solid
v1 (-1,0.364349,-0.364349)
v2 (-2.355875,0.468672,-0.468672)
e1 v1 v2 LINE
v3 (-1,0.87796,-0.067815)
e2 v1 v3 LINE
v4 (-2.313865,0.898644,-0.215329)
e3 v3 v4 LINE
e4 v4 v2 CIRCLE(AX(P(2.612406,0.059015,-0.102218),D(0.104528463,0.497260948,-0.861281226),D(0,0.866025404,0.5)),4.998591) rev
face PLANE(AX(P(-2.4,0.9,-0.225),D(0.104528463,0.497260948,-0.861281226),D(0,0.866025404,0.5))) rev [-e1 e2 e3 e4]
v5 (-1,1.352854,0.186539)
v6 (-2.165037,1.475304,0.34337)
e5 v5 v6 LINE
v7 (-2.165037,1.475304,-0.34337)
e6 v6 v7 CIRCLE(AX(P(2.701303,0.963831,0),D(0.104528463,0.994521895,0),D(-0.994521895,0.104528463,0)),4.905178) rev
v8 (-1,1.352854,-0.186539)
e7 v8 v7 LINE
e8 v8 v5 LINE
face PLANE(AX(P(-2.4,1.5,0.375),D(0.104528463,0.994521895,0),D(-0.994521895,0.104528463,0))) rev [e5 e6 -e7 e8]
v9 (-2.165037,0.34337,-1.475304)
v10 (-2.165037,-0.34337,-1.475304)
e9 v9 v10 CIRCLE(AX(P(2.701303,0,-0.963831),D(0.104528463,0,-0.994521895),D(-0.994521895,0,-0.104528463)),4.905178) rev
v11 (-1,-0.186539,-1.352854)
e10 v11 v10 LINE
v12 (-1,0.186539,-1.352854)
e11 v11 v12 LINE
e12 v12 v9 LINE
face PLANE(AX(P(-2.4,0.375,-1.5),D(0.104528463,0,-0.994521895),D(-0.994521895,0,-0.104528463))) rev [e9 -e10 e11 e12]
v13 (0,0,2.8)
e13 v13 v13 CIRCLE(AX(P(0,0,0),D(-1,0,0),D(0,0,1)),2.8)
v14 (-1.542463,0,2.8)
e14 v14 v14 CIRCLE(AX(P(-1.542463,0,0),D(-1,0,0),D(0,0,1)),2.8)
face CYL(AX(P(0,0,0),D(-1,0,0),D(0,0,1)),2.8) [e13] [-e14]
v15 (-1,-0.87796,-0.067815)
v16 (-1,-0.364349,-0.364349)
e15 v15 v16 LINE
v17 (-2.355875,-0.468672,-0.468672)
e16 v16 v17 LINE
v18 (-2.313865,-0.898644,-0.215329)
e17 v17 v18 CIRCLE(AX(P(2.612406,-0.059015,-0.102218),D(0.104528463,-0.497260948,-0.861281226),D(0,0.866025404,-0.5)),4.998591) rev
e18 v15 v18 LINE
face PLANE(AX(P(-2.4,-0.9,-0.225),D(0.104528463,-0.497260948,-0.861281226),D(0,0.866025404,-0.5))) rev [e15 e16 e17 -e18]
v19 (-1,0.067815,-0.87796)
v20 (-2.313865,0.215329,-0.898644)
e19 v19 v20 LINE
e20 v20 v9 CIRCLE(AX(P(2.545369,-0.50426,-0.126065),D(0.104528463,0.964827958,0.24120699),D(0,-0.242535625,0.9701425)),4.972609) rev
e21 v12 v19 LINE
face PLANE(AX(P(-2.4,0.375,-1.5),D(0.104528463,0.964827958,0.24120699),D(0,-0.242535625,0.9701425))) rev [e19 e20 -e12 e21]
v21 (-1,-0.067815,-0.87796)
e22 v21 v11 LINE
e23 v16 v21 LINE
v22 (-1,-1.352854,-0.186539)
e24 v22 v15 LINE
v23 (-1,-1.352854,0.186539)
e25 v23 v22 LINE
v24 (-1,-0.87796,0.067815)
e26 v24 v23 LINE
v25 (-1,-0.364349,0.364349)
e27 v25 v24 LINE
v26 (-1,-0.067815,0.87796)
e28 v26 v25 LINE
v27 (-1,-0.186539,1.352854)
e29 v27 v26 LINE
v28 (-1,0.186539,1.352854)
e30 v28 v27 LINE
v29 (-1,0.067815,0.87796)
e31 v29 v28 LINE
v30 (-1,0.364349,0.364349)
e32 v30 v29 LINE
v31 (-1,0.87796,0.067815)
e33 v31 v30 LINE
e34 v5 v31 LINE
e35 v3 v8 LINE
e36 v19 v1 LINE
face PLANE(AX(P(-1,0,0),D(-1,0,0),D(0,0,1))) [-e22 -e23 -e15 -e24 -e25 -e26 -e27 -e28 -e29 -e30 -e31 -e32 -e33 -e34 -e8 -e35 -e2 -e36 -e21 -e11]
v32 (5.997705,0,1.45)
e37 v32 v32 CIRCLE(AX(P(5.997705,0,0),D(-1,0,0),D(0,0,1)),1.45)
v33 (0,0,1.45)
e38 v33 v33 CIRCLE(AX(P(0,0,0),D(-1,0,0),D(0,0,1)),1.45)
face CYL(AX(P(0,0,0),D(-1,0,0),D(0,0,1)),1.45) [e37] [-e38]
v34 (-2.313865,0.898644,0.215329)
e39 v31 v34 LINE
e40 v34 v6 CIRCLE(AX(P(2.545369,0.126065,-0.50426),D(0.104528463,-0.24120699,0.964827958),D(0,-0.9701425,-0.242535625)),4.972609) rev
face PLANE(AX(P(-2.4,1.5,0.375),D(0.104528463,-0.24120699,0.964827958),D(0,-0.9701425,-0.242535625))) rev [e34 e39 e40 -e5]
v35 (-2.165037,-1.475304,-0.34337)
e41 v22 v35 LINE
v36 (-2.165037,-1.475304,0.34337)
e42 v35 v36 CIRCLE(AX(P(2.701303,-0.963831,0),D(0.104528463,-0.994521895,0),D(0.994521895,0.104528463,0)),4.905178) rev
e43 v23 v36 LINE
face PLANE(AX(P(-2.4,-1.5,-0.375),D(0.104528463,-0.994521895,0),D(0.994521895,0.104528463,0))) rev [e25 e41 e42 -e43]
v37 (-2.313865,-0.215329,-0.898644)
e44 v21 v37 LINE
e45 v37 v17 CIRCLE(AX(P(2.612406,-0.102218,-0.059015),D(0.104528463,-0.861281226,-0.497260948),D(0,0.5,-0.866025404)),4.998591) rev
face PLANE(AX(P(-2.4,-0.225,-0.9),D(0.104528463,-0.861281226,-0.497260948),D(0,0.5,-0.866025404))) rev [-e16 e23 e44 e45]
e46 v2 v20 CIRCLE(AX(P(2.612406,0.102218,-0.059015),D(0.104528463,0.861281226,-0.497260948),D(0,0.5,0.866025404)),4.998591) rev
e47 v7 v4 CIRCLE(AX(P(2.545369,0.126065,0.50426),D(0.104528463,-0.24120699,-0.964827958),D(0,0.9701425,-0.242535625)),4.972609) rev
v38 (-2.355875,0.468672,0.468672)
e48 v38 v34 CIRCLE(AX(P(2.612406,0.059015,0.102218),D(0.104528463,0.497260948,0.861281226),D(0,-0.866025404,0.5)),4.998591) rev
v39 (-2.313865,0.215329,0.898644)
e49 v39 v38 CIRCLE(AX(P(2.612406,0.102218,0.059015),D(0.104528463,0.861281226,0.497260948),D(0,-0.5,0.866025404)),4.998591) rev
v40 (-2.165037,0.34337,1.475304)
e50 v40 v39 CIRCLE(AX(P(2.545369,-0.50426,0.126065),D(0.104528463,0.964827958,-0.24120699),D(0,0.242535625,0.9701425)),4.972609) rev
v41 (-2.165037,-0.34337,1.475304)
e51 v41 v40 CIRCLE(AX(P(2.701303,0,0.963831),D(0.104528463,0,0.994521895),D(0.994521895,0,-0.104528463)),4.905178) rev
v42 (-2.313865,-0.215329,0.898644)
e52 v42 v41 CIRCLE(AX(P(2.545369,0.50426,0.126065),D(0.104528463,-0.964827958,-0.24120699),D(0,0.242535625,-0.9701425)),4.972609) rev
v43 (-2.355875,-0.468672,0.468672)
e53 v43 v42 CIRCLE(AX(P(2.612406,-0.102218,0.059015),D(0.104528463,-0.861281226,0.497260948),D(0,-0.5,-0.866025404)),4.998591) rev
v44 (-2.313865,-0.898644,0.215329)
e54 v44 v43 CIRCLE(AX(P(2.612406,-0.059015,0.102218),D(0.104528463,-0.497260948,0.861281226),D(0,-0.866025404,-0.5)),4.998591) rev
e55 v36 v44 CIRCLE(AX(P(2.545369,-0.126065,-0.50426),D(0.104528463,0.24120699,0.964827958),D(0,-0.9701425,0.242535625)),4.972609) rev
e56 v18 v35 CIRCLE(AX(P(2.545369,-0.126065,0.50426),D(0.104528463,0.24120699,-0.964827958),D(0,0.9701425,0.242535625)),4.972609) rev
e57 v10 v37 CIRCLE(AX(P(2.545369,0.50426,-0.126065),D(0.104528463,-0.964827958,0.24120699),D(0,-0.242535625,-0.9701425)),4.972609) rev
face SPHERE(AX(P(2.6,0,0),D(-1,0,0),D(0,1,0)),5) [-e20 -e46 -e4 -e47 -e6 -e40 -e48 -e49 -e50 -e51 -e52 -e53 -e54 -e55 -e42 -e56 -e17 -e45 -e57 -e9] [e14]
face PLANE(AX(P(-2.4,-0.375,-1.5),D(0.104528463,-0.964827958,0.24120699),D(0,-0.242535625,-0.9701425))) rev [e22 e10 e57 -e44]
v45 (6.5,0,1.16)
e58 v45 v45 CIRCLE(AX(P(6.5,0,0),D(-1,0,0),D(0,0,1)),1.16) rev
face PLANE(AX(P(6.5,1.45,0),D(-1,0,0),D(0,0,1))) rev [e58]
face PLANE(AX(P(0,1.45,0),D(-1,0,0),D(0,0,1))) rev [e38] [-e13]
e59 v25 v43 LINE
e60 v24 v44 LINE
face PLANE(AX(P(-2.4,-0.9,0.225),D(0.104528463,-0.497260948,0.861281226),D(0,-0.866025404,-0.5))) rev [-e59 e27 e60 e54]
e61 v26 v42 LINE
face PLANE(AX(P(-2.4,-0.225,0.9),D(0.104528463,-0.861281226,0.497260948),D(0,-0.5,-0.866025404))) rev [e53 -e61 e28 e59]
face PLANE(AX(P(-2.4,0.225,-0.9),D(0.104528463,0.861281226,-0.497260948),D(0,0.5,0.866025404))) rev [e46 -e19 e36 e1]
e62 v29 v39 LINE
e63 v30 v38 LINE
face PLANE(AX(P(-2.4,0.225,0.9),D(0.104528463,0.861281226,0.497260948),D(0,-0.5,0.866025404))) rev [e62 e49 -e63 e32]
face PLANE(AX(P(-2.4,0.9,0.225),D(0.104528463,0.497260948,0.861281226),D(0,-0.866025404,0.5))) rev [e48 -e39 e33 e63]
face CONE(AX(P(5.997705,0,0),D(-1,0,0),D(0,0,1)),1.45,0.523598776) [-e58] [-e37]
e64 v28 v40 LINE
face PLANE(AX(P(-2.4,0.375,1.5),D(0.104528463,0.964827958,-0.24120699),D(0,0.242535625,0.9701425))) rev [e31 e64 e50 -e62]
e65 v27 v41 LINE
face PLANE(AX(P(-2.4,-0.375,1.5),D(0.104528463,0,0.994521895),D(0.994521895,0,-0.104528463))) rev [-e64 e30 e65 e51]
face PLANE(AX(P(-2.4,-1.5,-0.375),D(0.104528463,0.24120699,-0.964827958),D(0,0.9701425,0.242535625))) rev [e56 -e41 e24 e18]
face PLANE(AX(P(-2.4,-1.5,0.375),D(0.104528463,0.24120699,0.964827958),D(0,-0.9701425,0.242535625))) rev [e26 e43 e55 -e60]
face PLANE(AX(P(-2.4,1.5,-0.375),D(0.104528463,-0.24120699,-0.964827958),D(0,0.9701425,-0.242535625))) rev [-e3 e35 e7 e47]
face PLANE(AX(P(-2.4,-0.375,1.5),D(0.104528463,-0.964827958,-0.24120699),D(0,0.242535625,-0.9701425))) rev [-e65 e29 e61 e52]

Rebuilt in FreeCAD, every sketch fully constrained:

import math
import FreeCAD as App
import Part
import Sketcher
Q = App.Units.Quantity


def edges_at(feature, points):
    """Names of the edges that pass closest to the given points."""
    edges = feature.Shape.Edges
    near = lambda p: min(range(len(edges)), key=lambda i: edges[i].distToShape(Part.Vertex(*p))[0])
    return sorted({f"Edge{near(p) + 1}" for p in points})


def add_polygon(sketch, points):
    """Adds a closed chain of lines whose ends are joined by coincident constraints."""
    first, n = sketch.GeometryCount, len(points)
    for a, b in zip(points, points[1:] + points[:1]):
        sketch.addGeometry(Part.LineSegment(App.Vector(*a, 0), App.Vector(*b, 0)), False)
    for i in range(n):
        sketch.addConstraint(Sketcher.Constraint("Coincident", first + i, 2, first + (i + 1) % n, 1))

doc = App.newDocument("Part")
params = doc.addObject("Spreadsheet::Sheet", "Params")
for row, (alias, value) in enumerate([
    ("sketch1_radius", "5 mm"),
    ("sketch1_width", "8.9 mm"),
    ("sketch1_width2", "6.5 mm"),
    ("sketch1_height", "1.45 mm"),
    ("sketch1_height2", "1.35 mm"),
    ("revolution_angle", "360 deg"),
    ("chamfer_size", "0.29 mm"),
    ("chamfer_size2", "0.502295 mm"),
    ("sketch2_width", "0.75 mm"),
    ("pocket1_length", "1.4 mm"),
    ("pocket1_taper", "-6 deg"),
], start=1):
    params.set(f"A{row}", alias)
    params.set(f"B{row}", "=" + value)
    params.setAlias(f"B{row}", alias)

body = doc.addObject("PartDesign::Body", "Body")

sketch1 = body.newObject("Sketcher::SketchObject", "Sketch")
sketch1.AttachmentSupport = (doc.getObject("XY_Plane"), [""])
sketch1.MapMode = "FlatFace"
sketch1.addGeometry(Part.LineSegment(App.Vector(0, 2.8, 0), App.Vector(-1.5, 2.8, 0)), False)
sketch1.addGeometry(Part.ArcOfCircle(Part.Circle(App.Vector(2.6, 0, 0), App.Vector(0, 0, 1), 5), math.radians(146), math.radians(180)), False)
sketch1.addGeometry(Part.LineSegment(App.Vector(-2.4, 0, 0), App.Vector(6.5, 0, 0)), False)
sketch1.addGeometry(Part.LineSegment(App.Vector(6.5, 0, 0), App.Vector(6.5, 1.4, 0)), False)
sketch1.addGeometry(Part.LineSegment(App.Vector(6.5, 1.4, 0), App.Vector(0, 1.4, 0)), False)
sketch1.addGeometry(Part.LineSegment(App.Vector(0, 1.4, 0), App.Vector(0, 2.8, 0)), False)
sketch1.addConstraint(Sketcher.Constraint("Coincident", 0, 2, 1, 1))
sketch1.addConstraint(Sketcher.Constraint("Coincident", 1, 2, 2, 1))
sketch1.addConstraint(Sketcher.Constraint("Coincident", 2, 2, 3, 1))
sketch1.addConstraint(Sketcher.Constraint("Coincident", 3, 2, 4, 1))
sketch1.addConstraint(Sketcher.Constraint("Coincident", 4, 2, 5, 1))
sketch1.addConstraint(Sketcher.Constraint("Coincident", 5, 2, 0, 1))
sketch1.addConstraint(Sketcher.Constraint("Horizontal", 0))
sketch1.addConstraint(Sketcher.Constraint("Horizontal", 2))
sketch1.addConstraint(Sketcher.Constraint("Vertical", 3))
sketch1.addConstraint(Sketcher.Constraint("Horizontal", 4))
sketch1.addConstraint(Sketcher.Constraint("Vertical", 5))
sketch1.addConstraint(Sketcher.Constraint("PointOnObject", 1, 3, -1))
sketch1.addConstraint(Sketcher.Constraint("PointOnObject", 1, 2, -1))
sketch1.addConstraint(Sketcher.Constraint("PointOnObject", 4, 2, -2))
sketch1.addConstraint(Sketcher.Constraint("Radius", 1, Q("5 mm")))
sketch1.addConstraint(Sketcher.Constraint("DistanceX", 2, 1, 2, 2, Q("8.9 mm")))
sketch1.addConstraint(Sketcher.Constraint("DistanceX", 4, 2, 4, 1, Q("6.5 mm")))
sketch1.addConstraint(Sketcher.Constraint("DistanceY", 3, 1, 3, 2, Q("1.45 mm")))
sketch1.addConstraint(Sketcher.Constraint("DistanceY", 5, 1, 5, 2, Q("1.35 mm")))
sketch1.setExpression("Constraints[14]", "Params.sketch1_radius")
sketch1.setExpression("Constraints[15]", "Params.sketch1_width")
sketch1.setExpression("Constraints[16]", "Params.sketch1_width2")
sketch1.setExpression("Constraints[17]", "Params.sketch1_height")
sketch1.setExpression("Constraints[18]", "Params.sketch1_height2")
revolution = body.newObject("PartDesign::Revolution", "Revolution")
revolution.Profile = sketch1
revolution.ReferenceAxis = (sketch1, ["H_Axis"])
revolution.setExpression("Angle", "Params.revolution_angle")
doc.recompute()

chamfer = body.newObject("PartDesign::Chamfer", "Chamfer")
chamfer.Base = (revolution, edges_at(revolution, [(6.5, 0, -1.45)]))
chamfer.ChamferType = "Two distances"
chamfer.setExpression("Size", "Params.chamfer_size")
chamfer.setExpression("Size2", "Params.chamfer_size2")

sketch2 = body.newObject("Sketcher::SketchObject", "Sketch001")
sketch2.AttachmentSupport = (doc.getObject("YZ_Plane"), [""])
sketch2.MapMode = "FlatFace"
sketch2.AttachmentOffset = App.Placement(App.Vector(0, 0, -2.4), App.Rotation())
add_polygon(sketch2, [(1.5, 0.38), (0.9, 0.23), (0.47, 0.47), (0.23, 0.9), (0.38, 1.5), (-0.38, 1.5), (-0.23, 0.9), (-0.47, 0.47), (-0.9, 0.23), (-1.5, 0.38), (-1.5, -0.38), (-0.9, -0.23), (-0.47, -0.47), (-0.23, -0.9), (-0.38, -1.5), (0.38, -1.5), (0.23, -0.9), (0.47, -0.47), (0.9, -0.23), (1.5, -0.38)])
sketch2.addConstraint(Sketcher.Constraint("Horizontal", 4))
sketch2.addConstraint(Sketcher.Constraint("Vertical", 9))
sketch2.addConstraint(Sketcher.Constraint("Horizontal", 14))
sketch2.addConstraint(Sketcher.Constraint("Vertical", 19))
sketch2.addConstraint(Sketcher.Constraint("Symmetric", 0, 2, 10, 2, -1, 1))
sketch2.addConstraint(Sketcher.Constraint("Symmetric", 1, 2, 11, 2, -1, 1))
sketch2.addConstraint(Sketcher.Constraint("Symmetric", 2, 2, 12, 2, -1, 1))
sketch2.addConstraint(Sketcher.Constraint("Symmetric", 3, 2, 13, 2, -1, 1))
sketch2.addConstraint(Sketcher.Constraint("Symmetric", 5, 2, 15, 2, -1, 1))
sketch2.addConstraint(Sketcher.Constraint("Symmetric", 6, 2, 16, 2, -1, 1))
sketch2.addConstraint(Sketcher.Constraint("Symmetric", 7, 2, 17, 2, -1, 1))
sketch2.addConstraint(Sketcher.Constraint("Symmetric", 8, 2, 18, 2, -1, 1))
sketch2.addConstraint(Sketcher.Constraint("Symmetric", 2, 2, 5, 2, -2))
sketch2.addConstraint(Sketcher.Constraint("Symmetric", 1, 2, 6, 2, -2))
sketch2.addConstraint(Sketcher.Constraint("Symmetric", 0, 2, 7, 2, -2))
sketch2.addConstraint(Sketcher.Constraint("Perpendicular", 0, 5))
sketch2.addConstraint(Sketcher.Constraint("Perpendicular", 1, 6))
sketch2.addConstraint(Sketcher.Constraint("Perpendicular", 3, 8))
sketch2.addConstraint(Sketcher.Constraint("Perpendicular", 5, 10))
sketch2.addConstraint(Sketcher.Constraint("Perpendicular", 10, 15))
sketch2.addConstraint(Sketcher.Constraint("Horizontal", 9, 2, 18, 2))
sketch2.addConstraint(Sketcher.Constraint("Equal", 14, 9))
sketch2.addConstraint(Sketcher.Constraint("Equal", 1, 2))
sketch2.addConstraint(Sketcher.Constraint("Equal", 0, 3))
sketch2.addConstraint(Sketcher.Constraint("Angle", 1, Q("150 deg")))
sketch2.addConstraint(Sketcher.Constraint("DistanceX", 4, 2, 4, 1, Q("0.75 mm")))
sketch2.addConstraint(Sketcher.Constraint("DistanceX", -1, 1, 0, 2, Q("0.9 mm")))
sketch2.addConstraint(Sketcher.Constraint("DistanceY", -1, 1, 3, 2, Q("1.5 mm")))
sketch2.addConstraint(Sketcher.Constraint("DistanceX", 4, 2, 2, 2, Q("0.6 mm")))
sketch2.setExpression("Constraints[45]", "Params.sketch2_width")
pocket1 = body.newObject("PartDesign::Pocket", "Pocket")
pocket1.Profile = sketch2
pocket1.setExpression("Length", "Params.pocket1_length")
pocket1.Reversed = True
pocket1.setExpression("TaperAngle", "Params.pocket1_taper")

doc.recompute()
